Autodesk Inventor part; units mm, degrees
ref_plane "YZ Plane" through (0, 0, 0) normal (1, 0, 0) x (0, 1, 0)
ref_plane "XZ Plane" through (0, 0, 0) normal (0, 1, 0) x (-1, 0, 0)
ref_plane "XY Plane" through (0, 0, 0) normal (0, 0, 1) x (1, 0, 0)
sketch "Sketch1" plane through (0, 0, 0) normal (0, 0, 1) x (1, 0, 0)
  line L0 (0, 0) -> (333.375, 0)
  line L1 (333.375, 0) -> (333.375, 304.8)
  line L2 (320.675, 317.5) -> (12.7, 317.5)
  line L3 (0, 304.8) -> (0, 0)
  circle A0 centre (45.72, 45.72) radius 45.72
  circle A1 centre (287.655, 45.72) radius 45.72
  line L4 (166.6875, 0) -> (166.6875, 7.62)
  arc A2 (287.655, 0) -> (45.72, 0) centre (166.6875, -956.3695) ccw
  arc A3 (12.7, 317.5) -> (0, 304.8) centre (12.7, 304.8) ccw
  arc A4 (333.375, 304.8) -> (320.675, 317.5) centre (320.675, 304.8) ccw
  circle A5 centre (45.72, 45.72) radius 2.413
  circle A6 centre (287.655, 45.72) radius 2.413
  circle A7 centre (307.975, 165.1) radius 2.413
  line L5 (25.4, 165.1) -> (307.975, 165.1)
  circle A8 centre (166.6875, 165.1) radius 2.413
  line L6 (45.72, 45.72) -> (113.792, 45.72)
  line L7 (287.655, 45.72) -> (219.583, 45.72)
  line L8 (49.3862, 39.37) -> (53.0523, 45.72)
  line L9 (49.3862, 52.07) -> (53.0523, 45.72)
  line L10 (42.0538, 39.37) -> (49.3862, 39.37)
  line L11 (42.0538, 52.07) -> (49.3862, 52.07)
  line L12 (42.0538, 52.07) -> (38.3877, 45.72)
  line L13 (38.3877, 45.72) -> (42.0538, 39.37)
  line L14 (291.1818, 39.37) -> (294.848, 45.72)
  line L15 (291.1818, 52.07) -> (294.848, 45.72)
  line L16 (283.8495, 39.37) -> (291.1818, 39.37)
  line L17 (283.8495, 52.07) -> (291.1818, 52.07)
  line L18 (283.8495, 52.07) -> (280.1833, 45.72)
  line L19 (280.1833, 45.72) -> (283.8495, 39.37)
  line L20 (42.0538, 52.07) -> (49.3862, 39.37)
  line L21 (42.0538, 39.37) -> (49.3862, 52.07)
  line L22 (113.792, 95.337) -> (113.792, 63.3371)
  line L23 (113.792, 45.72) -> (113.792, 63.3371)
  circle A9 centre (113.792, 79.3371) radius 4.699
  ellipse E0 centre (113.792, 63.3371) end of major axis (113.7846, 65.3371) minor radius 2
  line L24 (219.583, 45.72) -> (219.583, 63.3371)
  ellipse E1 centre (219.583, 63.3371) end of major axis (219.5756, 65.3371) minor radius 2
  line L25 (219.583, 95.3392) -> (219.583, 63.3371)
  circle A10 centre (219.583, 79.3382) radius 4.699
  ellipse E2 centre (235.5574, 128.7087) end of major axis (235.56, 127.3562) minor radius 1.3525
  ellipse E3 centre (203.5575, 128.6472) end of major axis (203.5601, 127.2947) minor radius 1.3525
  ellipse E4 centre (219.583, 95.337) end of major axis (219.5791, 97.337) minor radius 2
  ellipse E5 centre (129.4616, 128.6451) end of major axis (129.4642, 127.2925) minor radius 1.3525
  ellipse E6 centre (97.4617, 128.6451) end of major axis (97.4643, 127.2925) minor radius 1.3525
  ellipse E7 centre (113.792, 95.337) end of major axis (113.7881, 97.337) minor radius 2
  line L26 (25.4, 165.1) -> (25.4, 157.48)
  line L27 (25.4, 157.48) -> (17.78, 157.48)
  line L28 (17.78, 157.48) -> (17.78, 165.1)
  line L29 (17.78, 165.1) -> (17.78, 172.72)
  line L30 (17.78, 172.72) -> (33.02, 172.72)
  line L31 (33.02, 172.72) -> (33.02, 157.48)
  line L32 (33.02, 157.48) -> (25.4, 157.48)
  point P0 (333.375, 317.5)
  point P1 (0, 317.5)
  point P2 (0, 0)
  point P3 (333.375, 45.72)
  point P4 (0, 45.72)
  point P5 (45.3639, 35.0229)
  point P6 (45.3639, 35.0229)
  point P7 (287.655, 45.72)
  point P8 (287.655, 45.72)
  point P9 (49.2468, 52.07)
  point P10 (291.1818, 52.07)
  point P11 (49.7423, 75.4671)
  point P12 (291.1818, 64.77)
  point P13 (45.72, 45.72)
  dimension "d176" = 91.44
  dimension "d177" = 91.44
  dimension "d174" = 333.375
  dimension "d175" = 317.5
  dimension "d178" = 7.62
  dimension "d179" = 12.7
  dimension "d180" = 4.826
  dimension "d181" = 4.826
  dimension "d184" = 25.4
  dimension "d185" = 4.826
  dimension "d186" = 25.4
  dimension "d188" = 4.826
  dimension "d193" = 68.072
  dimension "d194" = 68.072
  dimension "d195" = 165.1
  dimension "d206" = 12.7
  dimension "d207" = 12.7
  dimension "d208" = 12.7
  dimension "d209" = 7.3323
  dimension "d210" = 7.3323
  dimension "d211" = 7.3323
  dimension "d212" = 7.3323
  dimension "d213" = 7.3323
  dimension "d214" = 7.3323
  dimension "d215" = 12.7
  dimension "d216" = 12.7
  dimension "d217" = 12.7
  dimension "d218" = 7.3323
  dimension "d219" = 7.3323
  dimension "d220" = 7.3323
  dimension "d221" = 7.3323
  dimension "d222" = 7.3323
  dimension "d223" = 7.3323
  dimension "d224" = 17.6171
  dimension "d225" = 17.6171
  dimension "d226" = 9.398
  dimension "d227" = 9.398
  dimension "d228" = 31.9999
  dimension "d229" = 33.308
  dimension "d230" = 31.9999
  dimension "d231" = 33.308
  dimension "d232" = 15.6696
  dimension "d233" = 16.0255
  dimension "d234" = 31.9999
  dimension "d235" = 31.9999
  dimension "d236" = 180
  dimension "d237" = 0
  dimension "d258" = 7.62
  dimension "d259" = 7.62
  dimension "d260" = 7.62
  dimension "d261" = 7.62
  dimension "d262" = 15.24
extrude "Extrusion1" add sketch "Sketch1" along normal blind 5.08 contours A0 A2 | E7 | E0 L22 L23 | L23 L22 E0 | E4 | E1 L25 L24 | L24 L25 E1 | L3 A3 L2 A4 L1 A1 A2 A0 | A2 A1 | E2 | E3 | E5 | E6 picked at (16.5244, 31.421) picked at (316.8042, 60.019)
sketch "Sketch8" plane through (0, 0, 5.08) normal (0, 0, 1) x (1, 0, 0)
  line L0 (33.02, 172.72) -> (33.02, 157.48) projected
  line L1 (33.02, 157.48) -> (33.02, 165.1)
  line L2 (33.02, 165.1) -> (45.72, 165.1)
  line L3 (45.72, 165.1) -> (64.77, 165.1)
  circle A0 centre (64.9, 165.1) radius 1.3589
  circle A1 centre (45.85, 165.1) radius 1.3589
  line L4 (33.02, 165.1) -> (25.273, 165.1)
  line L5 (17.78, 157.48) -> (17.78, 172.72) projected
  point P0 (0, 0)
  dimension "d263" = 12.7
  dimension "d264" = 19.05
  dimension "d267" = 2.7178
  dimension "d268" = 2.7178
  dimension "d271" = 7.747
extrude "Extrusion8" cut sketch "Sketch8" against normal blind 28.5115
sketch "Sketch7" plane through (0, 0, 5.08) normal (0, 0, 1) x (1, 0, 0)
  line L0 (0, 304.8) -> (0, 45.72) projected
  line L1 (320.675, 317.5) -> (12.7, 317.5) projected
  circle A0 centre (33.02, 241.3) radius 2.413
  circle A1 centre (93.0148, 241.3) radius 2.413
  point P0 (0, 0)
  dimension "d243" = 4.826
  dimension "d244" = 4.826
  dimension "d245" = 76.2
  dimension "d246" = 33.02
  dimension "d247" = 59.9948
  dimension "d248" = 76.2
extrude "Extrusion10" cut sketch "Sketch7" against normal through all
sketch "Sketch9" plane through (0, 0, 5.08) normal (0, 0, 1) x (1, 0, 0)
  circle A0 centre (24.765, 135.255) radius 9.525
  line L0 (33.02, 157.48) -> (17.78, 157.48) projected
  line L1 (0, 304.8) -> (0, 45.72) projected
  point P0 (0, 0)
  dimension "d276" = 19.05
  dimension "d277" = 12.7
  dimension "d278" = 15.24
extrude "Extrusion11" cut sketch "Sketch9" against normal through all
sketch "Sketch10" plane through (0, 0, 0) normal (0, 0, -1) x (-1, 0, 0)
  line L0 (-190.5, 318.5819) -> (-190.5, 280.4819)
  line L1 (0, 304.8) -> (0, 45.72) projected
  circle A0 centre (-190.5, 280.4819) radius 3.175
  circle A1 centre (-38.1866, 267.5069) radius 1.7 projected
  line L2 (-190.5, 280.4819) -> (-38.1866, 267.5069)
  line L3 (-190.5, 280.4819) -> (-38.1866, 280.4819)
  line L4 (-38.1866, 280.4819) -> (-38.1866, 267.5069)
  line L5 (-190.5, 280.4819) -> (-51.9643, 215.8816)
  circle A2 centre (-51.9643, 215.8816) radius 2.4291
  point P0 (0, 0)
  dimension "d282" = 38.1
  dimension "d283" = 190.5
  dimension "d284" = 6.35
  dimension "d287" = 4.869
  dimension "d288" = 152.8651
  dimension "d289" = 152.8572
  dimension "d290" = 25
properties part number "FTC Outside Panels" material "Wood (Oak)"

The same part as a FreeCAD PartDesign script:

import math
import FreeCAD as App
import Part
import Sketcher
Q = App.Units.Quantity

doc = App.newDocument("Part")
body = doc.addObject("PartDesign::Body", "Body")

# Sketch on XY plane
sketch1 = doc.addObject("Sketcher::SketchObject", "Sketch")
body.addObject(sketch1)
sketch1.AttachmentSupport = (doc.XY_Plane, [""])
sketch1.MapMode = "FlatFace"
sketch1.addGeometry(Part.ArcOfCircle(Part.Circle(App.Vector(45.7, 45.7, 0), App.Vector(0, 0, 1), 45.7), math.radians(180), math.radians(270)), False)
sketch1.addGeometry(Part.ArcOfCircle(Part.Circle(App.Vector(166.7, -956.4, 0), App.Vector(0, 0, 1), 964), math.radians(82.79), math.radians(97.21)), False)
sketch1.addGeometry(Part.ArcOfCircle(Part.Circle(App.Vector(287.7, 45.7, 0), App.Vector(0, 0, 1), 45.7), math.radians(-90), math.radians(0)), False)
sketch1.addGeometry(Part.LineSegment(App.Vector(333.4, 45.7, 0), App.Vector(333.4, 304.8, 0)), False)
sketch1.addGeometry(Part.ArcOfCircle(Part.Circle(App.Vector(320.7, 304.8, 0), App.Vector(0, 0, 1), 12.7), math.radians(0), math.radians(90)), False)
sketch1.addGeometry(Part.LineSegment(App.Vector(320.7, 317.5, 0), App.Vector(12.7, 317.5, 0)), False)
sketch1.addGeometry(Part.ArcOfCircle(Part.Circle(App.Vector(12.7, 304.8, 0), App.Vector(0, 0, 1), 12.7), math.radians(90), math.radians(180)), False)
sketch1.addGeometry(Part.LineSegment(App.Vector(0, 304.8, 0), App.Vector(0, 45.7, 0)), False)
sketch1.addGeometry(Part.LineSegment(App.Vector(49.4, 52.1, 0), App.Vector(53.1, 45.7, 0)), False)
sketch1.addGeometry(Part.LineSegment(App.Vector(53.1, 45.7, 0), App.Vector(49.4, 39.4, 0)), False)
sketch1.addGeometry(Part.LineSegment(App.Vector(49.4, 39.4, 0), App.Vector(42.1, 39.4, 0)), False)
sketch1.addGeometry(Part.LineSegment(App.Vector(42.1, 39.4, 0), App.Vector(38.4, 45.7, 0)), False)
sketch1.addGeometry(Part.LineSegment(App.Vector(38.4, 45.7, 0), App.Vector(42.1, 52.1, 0)), False)
sketch1.addGeometry(Part.LineSegment(App.Vector(42.1, 52.1, 0), App.Vector(49.4, 52.1, 0)), False)
sketch1.addGeometry(Part.ArcOfCircle(Part.Circle(App.Vector(113.8, 79.3, 0), App.Vector(0, 0, 1), 4.7), math.radians(90), math.radians(270)), False)
sketch1.addGeometry(Part.ArcOfCircle(Part.Circle(App.Vector(113.8, 79.3, 0), App.Vector(0, 0, 1), 4.7), math.radians(-90), math.radians(90)), False)
sketch1.addGeometry(Part.ArcOfCircle(Part.Circle(App.Vector(219.6, 79.3, 0), App.Vector(0, 0, 1), 4.7), math.radians(90), math.radians(270)), False)
sketch1.addGeometry(Part.ArcOfCircle(Part.Circle(App.Vector(219.6, 79.3, 0), App.Vector(0, 0, 1), 4.7), math.radians(-90), math.radians(90)), False)
sketch1.addGeometry(Part.LineSegment(App.Vector(33, 172.7, 0), App.Vector(33, 165.1, 0)), False)
sketch1.addGeometry(Part.LineSegment(App.Vector(33, 165.1, 0), App.Vector(33, 157.5, 0)), False)
sketch1.addGeometry(Part.LineSegment(App.Vector(33, 157.5, 0), App.Vector(17.8, 157.5, 0)), False)
sketch1.addGeometry(Part.LineSegment(App.Vector(17.8, 157.5, 0), App.Vector(17.8, 172.7, 0)), False)
sketch1.addGeometry(Part.LineSegment(App.Vector(17.8, 172.7, 0), App.Vector(33, 172.7, 0)), False)
sketch1.addGeometry(Part.ArcOfCircle(Part.Circle(App.Vector(166.7, 165.1, 0), App.Vector(0, 0, 1), 2.4), math.radians(0), math.radians(180)), False)
sketch1.addGeometry(Part.ArcOfCircle(Part.Circle(App.Vector(166.7, 165.1, 0), App.Vector(0, 0, 1), 2.4), math.radians(180), math.radians(360)), False)
sketch1.addGeometry(Part.Circle(App.Vector(308, 165.1, 0), App.Vector(0, 0, 1), 2.4), False)
sketch1.addGeometry(Part.LineSegment(App.Vector(280.2, 45.7, 0), App.Vector(283.8, 52.1, 0)), False)
sketch1.addGeometry(Part.LineSegment(App.Vector(283.8, 52.1, 0), App.Vector(291.2, 52.1, 0)), False)
sketch1.addGeometry(Part.LineSegment(App.Vector(291.2, 52.1, 0), App.Vector(294.8, 45.7, 0)), False)
sketch1.addGeometry(Part.LineSegment(App.Vector(294.8, 45.7, 0), App.Vector(291.2, 39.4, 0)), False)
sketch1.addGeometry(Part.LineSegment(App.Vector(291.2, 39.4, 0), App.Vector(283.8, 39.4, 0)), False)
sketch1.addGeometry(Part.LineSegment(App.Vector(283.8, 39.4, 0), App.Vector(280.2, 45.7, 0)), False)
sketch1.addConstraint(Sketcher.Constraint("Coincident", 0, 2, 1, 2))
sketch1.addConstraint(Sketcher.Constraint("Coincident", 1, 1, 2, 1))
sketch1.addConstraint(Sketcher.Constraint("Tangent", 2, 2, 3, 1))
sketch1.addConstraint(Sketcher.Constraint("Tangent", 3, 2, 4, 1))
sketch1.addConstraint(Sketcher.Constraint("Tangent", 4, 2, 5, 1))
sketch1.addConstraint(Sketcher.Constraint("Tangent", 5, 2, 6, 1))
sketch1.addConstraint(Sketcher.Constraint("Tangent", 6, 2, 7, 1))
sketch1.addConstraint(Sketcher.Constraint("Tangent", 7, 2, 0, 1))
sketch1.addConstraint(Sketcher.Constraint("Coincident", 8, 2, 9, 1))
sketch1.addConstraint(Sketcher.Constraint("Coincident", 9, 2, 10, 1))
sketch1.addConstraint(Sketcher.Constraint("Coincident", 10, 2, 11, 1))
sketch1.addConstraint(Sketcher.Constraint("Coincident", 11, 2, 12, 1))
sketch1.addConstraint(Sketcher.Constraint("Coincident", 12, 2, 13, 1))
sketch1.addConstraint(Sketcher.Constraint("Coincident", 13, 2, 8, 1))
sketch1.addConstraint(Sketcher.Constraint("Tangent", 14, 1, 15, 2))
sketch1.addConstraint(Sketcher.Constraint("Coincident", 15, 1, 14, 2))
sketch1.addConstraint(Sketcher.Constraint("Tangent", 16, 1, 17, 2))
sketch1.addConstraint(Sketcher.Constraint("Coincident", 17, 1, 16, 2))
sketch1.addConstraint(Sketcher.Constraint("Coincident", 18, 2, 19, 1))
sketch1.addConstraint(Sketcher.Constraint("Coincident", 19, 2, 20, 1))
sketch1.addConstraint(Sketcher.Constraint("Coincident", 20, 2, 21, 1))
sketch1.addConstraint(Sketcher.Constraint("Coincident", 21, 2, 22, 1))
sketch1.addConstraint(Sketcher.Constraint("Coincident", 22, 2, 18, 1))
sketch1.addConstraint(Sketcher.Constraint("Tangent", 23, 1, 24, 2))
sketch1.addConstraint(Sketcher.Constraint("Coincident", 24, 1, 23, 2))
sketch1.addConstraint(Sketcher.Constraint("Coincident", 26, 2, 27, 1))
sketch1.addConstraint(Sketcher.Constraint("Coincident", 27, 2, 28, 1))
sketch1.addConstraint(Sketcher.Constraint("Coincident", 28, 2, 29, 1))
sketch1.addConstraint(Sketcher.Constraint("Coincident", 29, 2, 30, 1))
sketch1.addConstraint(Sketcher.Constraint("Coincident", 30, 2, 31, 1))
sketch1.addConstraint(Sketcher.Constraint("Coincident", 31, 2, 26, 1))
sketch1.addConstraint(Sketcher.Constraint("Vertical", 3))
sketch1.addConstraint(Sketcher.Constraint("Horizontal", 5))
sketch1.addConstraint(Sketcher.Constraint("Vertical", 7))
sketch1.addConstraint(Sketcher.Constraint("Horizontal", 10))
sketch1.addConstraint(Sketcher.Constraint("Horizontal", 13))
sketch1.addConstraint(Sketcher.Constraint("Vertical", 18))
sketch1.addConstraint(Sketcher.Constraint("Vertical", 19))
sketch1.addConstraint(Sketcher.Constraint("Horizontal", 20))
sketch1.addConstraint(Sketcher.Constraint("Vertical", 21))
sketch1.addConstraint(Sketcher.Constraint("Horizontal", 22))
sketch1.addConstraint(Sketcher.Constraint("Horizontal", 27))
sketch1.addConstraint(Sketcher.Constraint("Horizontal", 30))
sketch1.addConstraint(Sketcher.Constraint("Equal", 0, 2))
sketch1.addConstraint(Sketcher.Constraint("Equal", 4, 6))
sketch1.addConstraint(Sketcher.Constraint("Equal", 15, 16))
sketch1.addConstraint(Sketcher.Constraint("Equal", 24, 25))
sketch1.addConstraint(Sketcher.Constraint("PointOnObject", 0, 2, -1))
sketch1.addConstraint(Sketcher.Constraint("PointOnObject", 1, 1, -1))
sketch1.addConstraint(Sketcher.Constraint("PointOnObject", 6, 2, -2))
sketch1.addConstraint(Sketcher.Constraint("Parallel", 8, 11))
sketch1.addConstraint(Sketcher.Constraint("Parallel", 9, 12))
sketch1.addConstraint(Sketcher.Constraint("Parallel", 12, 26))
sketch1.addConstraint(Sketcher.Constraint("Parallel", 11, 28))
sketch1.addConstraint(Sketcher.Constraint("Parallel", 26, 29))
sketch1.addConstraint(Sketcher.Constraint("Parallel", 28, 31))
sketch1.addConstraint(Sketcher.Constraint("Horizontal", 24, 3, 25, 3))
sketch1.addConstraint(Sketcher.Constraint("Horizontal", 7, 2, 8, 2))
sketch1.addConstraint(Sketcher.Constraint("Horizontal", 8, 2, 11, 2))
sketch1.addConstraint(Sketcher.Constraint("Horizontal", 25, 3, 18, 2))
sketch1.addConstraint(Sketcher.Constraint("Horizontal", 18, 2, 23, 1))
sketch1.addConstraint(Sketcher.Constraint("Horizontal", 23, 1, 24, 1))
sketch1.addConstraint(Sketcher.Constraint("Horizontal", 13, 2, 26, 2))
sketch1.addConstraint(Sketcher.Constraint("Horizontal", 11, 2, 28, 2))
sketch1.addConstraint(Sketcher.Constraint("Horizontal", 10, 2, 29, 2))
sketch1.addConstraint(Sketcher.Constraint("Horizontal", 28, 2, 31, 2))
sketch1.addConstraint(Sketcher.Constraint("Vertical", 1, 3, 23, 3))
sketch1.addConstraint(Sketcher.Constraint("Vertical", 2, 3, 1, 1))
sketch1.addConstraint(Sketcher.Constraint("Vertical", 10, 2, 12, 2))
sketch1.addConstraint(Sketcher.Constraint("Vertical", 9, 2, 13, 2))
sketch1.addConstraint(Sketcher.Constraint("Vertical", 15, 3, 14, 1))
sketch1.addConstraint(Sketcher.Constraint("Vertical", 14, 1, 15, 1))
sketch1.addConstraint(Sketcher.Constraint("Vertical", 17, 3, 16, 1))
sketch1.addConstraint(Sketcher.Constraint("Vertical", 16, 1, 17, 1))
sketch1.addConstraint(Sketcher.Constraint("Equal", 13, 27))
sketch1.addConstraint(Sketcher.Constraint("Equal", 18, 19))
sketch1.addConstraint(Sketcher.Constraint("Equal", 22, 21))
sketch1.addConstraint(Sketcher.Constraint("Radius", 0, Q("1.8 in")))
sketch1.addConstraint(Sketcher.Constraint("Radius", 4, Q("0.5 in")))
sketch1.addConstraint(Sketcher.Constraint("Diameter", 25, Q("0.19 in")))
sketch1.addConstraint(Sketcher.Constraint("DistanceX", 20, 2, 20, 1, Q("0.6 in")))
sketch1.addConstraint(Sketcher.Constraint("Radius", 14, Q("0.185 in")))
sketch1.addConstraint(Sketcher.Constraint("DistanceX", 25, 3, 2, 2, Q("1 in")))
sketch1.addConstraint(Sketcher.Constraint("DistanceY", -1, 1, 23, 3, Q("6.5 in")))
sketch1.addConstraint(Sketcher.Constraint("DistanceY", -1, 1, 4, 2, Q("12.5 in")))
sketch1.addConstraint(Sketcher.Constraint("DistanceY", 10, 2, 12, 2, Q("0.5 in")))
sketch1.addConstraint(Sketcher.Constraint("DistanceX", 0, 3, 14, 3, Q("2.68 in")))
sketch1.addConstraint(Sketcher.Constraint("DistanceX", 16, 3, 2, 3, Q("2.68 in")))
sketch1.addConstraint(Sketcher.Constraint("DistanceX", 0, 2, 14, 3, Q("2.68 in")))
sketch1.addConstraint(Sketcher.Constraint("DistanceX", -1, 1, 2, 2, Q("13.125 in")))
sketch1.addConstraint(Sketcher.Constraint("Angle", 8, Q("-60.0005 deg")))
sketch1.addConstraint(Sketcher.Constraint("DistanceX", 10, 2, 10, 1, 7.3324))
sketch1.addConstraint(Sketcher.Constraint("DistanceX", -1, 1, 18, 2, Q("1.3 in")))
sketch1.addConstraint(Sketcher.Constraint("Radius", 1, 963.9895))
sketch1.addConstraint(Sketcher.Constraint("DistanceX", 0, 3, 8, 2, 7.3323))
sketch1.addConstraint(Sketcher.Constraint("DistanceY", -1, 1, 14, 3, Q("3.1235 in")))
sketch1.addConstraint(Sketcher.Constraint("DistanceX", -1, 1, 28, 2, Q("11.6082 in")))
sketch1.addConstraint(Sketcher.Constraint("DistanceY", -1, 1, 16, 3, 79.3382))
pad1 = doc.addObject("PartDesign::Pad", "Pad")
body.addObject(pad1)
pad1.Profile = sketch1
pad1.Length = Q("0.2 in")

# Sketch on XY plane
sketch2 = doc.addObject("Sketcher::SketchObject", "Sketch001")
body.addObject(sketch2)
sketch2.AttachmentSupport = (doc.XY_Plane, [""])
sketch2.MapMode = "FlatFace"
sketch2.AttachmentOffset = App.Placement(App.Vector(0, 0, 0.2 * 25.4), App.Rotation())
sketch2.addGeometry(Part.Circle(App.Vector(45.9, 165.1, 0), App.Vector(0, 0, 1), 1.4), False)
sketch2.addGeometry(Part.Circle(App.Vector(64.9, 165.1, 0), App.Vector(0, 0, 1), 1.4), False)
sketch2.addConstraint(Sketcher.Constraint("Equal", 0, 1))
sketch2.addConstraint(Sketcher.Constraint("Horizontal", 0, 3, 1, 3))
sketch2.addConstraint(Sketcher.Constraint("Diameter", 0, Q("0.107 in")))
sketch2.addConstraint(Sketcher.Constraint("DistanceX", 0, 3, 1, 3, Q("0.75 in")))
sketch2.addConstraint(Sketcher.Constraint("DistanceY", -1, 1, 0, 3, Q("6.5 in")))
sketch2.addConstraint(Sketcher.Constraint("DistanceX", -1, 1, 0, 3, 45.85))
pocket1 = doc.addObject("PartDesign::Pocket", "Pocket")
body.addObject(pocket1)
pocket1.Profile = sketch2
pocket1.Length = Q("1.1225 in")

# Sketch on XY plane
sketch3 = doc.addObject("Sketcher::SketchObject", "Sketch002")
body.addObject(sketch3)
sketch3.AttachmentSupport = (doc.XY_Plane, [""])
sketch3.MapMode = "FlatFace"
sketch3.AttachmentOffset = App.Placement(App.Vector(0, 0, 0.2 * 25.4), App.Rotation())
sketch3.addGeometry(Part.Circle(App.Vector(33, 241.3, 0), App.Vector(0, 0, 1), 2.4), False)
sketch3.addGeometry(Part.Circle(App.Vector(93, 241.3, 0), App.Vector(0, 0, 1), 2.4), False)
sketch3.addConstraint(Sketcher.Constraint("Equal", 0, 1))
sketch3.addConstraint(Sketcher.Constraint("Horizontal", 0, 3, 1, 3))
sketch3.addConstraint(Sketcher.Constraint("Diameter", 0, Q("0.19 in")))
sketch3.addConstraint(Sketcher.Constraint("DistanceX", -1, 1, 0, 3, Q("1.3 in")))
sketch3.addConstraint(Sketcher.Constraint("DistanceX", 0, 3, 1, 3, Q("2.362 in")))
sketch3.addConstraint(Sketcher.Constraint("DistanceY", -1, 1, 0, 3, Q("9.5 in")))
pocket2 = doc.addObject("PartDesign::Pocket", "Pocket001")
body.addObject(pocket2)
pocket2.Profile = sketch3
pocket2.Type = "ThroughAll"

# Sketch on XY plane
sketch4 = doc.addObject("Sketcher::SketchObject", "Sketch003")
body.addObject(sketch4)
sketch4.AttachmentSupport = (doc.XY_Plane, [""])
sketch4.MapMode = "FlatFace"
sketch4.AttachmentOffset = App.Placement(App.Vector(0, 0, 0.2 * 25.4), App.Rotation())
sketch4.addGeometry(Part.Circle(App.Vector(25, 135, 0), App.Vector(0, 0, 1), 10), False)
sketch4.addConstraint(Sketcher.Constraint("Diameter", 0, Q("0.75 in")))
sketch4.addConstraint(Sketcher.Constraint("DistanceX", -1, 1, 0, 3, Q("0.975 in")))
sketch4.addConstraint(Sketcher.Constraint("DistanceY", -1, 1, 0, 3, Q("5.325 in")))
pocket3 = doc.addObject("PartDesign::Pocket", "Pocket002")
body.addObject(pocket3)
pocket3.Profile = sketch4
pocket3.Type = "ThroughAll"

doc.recompute()
